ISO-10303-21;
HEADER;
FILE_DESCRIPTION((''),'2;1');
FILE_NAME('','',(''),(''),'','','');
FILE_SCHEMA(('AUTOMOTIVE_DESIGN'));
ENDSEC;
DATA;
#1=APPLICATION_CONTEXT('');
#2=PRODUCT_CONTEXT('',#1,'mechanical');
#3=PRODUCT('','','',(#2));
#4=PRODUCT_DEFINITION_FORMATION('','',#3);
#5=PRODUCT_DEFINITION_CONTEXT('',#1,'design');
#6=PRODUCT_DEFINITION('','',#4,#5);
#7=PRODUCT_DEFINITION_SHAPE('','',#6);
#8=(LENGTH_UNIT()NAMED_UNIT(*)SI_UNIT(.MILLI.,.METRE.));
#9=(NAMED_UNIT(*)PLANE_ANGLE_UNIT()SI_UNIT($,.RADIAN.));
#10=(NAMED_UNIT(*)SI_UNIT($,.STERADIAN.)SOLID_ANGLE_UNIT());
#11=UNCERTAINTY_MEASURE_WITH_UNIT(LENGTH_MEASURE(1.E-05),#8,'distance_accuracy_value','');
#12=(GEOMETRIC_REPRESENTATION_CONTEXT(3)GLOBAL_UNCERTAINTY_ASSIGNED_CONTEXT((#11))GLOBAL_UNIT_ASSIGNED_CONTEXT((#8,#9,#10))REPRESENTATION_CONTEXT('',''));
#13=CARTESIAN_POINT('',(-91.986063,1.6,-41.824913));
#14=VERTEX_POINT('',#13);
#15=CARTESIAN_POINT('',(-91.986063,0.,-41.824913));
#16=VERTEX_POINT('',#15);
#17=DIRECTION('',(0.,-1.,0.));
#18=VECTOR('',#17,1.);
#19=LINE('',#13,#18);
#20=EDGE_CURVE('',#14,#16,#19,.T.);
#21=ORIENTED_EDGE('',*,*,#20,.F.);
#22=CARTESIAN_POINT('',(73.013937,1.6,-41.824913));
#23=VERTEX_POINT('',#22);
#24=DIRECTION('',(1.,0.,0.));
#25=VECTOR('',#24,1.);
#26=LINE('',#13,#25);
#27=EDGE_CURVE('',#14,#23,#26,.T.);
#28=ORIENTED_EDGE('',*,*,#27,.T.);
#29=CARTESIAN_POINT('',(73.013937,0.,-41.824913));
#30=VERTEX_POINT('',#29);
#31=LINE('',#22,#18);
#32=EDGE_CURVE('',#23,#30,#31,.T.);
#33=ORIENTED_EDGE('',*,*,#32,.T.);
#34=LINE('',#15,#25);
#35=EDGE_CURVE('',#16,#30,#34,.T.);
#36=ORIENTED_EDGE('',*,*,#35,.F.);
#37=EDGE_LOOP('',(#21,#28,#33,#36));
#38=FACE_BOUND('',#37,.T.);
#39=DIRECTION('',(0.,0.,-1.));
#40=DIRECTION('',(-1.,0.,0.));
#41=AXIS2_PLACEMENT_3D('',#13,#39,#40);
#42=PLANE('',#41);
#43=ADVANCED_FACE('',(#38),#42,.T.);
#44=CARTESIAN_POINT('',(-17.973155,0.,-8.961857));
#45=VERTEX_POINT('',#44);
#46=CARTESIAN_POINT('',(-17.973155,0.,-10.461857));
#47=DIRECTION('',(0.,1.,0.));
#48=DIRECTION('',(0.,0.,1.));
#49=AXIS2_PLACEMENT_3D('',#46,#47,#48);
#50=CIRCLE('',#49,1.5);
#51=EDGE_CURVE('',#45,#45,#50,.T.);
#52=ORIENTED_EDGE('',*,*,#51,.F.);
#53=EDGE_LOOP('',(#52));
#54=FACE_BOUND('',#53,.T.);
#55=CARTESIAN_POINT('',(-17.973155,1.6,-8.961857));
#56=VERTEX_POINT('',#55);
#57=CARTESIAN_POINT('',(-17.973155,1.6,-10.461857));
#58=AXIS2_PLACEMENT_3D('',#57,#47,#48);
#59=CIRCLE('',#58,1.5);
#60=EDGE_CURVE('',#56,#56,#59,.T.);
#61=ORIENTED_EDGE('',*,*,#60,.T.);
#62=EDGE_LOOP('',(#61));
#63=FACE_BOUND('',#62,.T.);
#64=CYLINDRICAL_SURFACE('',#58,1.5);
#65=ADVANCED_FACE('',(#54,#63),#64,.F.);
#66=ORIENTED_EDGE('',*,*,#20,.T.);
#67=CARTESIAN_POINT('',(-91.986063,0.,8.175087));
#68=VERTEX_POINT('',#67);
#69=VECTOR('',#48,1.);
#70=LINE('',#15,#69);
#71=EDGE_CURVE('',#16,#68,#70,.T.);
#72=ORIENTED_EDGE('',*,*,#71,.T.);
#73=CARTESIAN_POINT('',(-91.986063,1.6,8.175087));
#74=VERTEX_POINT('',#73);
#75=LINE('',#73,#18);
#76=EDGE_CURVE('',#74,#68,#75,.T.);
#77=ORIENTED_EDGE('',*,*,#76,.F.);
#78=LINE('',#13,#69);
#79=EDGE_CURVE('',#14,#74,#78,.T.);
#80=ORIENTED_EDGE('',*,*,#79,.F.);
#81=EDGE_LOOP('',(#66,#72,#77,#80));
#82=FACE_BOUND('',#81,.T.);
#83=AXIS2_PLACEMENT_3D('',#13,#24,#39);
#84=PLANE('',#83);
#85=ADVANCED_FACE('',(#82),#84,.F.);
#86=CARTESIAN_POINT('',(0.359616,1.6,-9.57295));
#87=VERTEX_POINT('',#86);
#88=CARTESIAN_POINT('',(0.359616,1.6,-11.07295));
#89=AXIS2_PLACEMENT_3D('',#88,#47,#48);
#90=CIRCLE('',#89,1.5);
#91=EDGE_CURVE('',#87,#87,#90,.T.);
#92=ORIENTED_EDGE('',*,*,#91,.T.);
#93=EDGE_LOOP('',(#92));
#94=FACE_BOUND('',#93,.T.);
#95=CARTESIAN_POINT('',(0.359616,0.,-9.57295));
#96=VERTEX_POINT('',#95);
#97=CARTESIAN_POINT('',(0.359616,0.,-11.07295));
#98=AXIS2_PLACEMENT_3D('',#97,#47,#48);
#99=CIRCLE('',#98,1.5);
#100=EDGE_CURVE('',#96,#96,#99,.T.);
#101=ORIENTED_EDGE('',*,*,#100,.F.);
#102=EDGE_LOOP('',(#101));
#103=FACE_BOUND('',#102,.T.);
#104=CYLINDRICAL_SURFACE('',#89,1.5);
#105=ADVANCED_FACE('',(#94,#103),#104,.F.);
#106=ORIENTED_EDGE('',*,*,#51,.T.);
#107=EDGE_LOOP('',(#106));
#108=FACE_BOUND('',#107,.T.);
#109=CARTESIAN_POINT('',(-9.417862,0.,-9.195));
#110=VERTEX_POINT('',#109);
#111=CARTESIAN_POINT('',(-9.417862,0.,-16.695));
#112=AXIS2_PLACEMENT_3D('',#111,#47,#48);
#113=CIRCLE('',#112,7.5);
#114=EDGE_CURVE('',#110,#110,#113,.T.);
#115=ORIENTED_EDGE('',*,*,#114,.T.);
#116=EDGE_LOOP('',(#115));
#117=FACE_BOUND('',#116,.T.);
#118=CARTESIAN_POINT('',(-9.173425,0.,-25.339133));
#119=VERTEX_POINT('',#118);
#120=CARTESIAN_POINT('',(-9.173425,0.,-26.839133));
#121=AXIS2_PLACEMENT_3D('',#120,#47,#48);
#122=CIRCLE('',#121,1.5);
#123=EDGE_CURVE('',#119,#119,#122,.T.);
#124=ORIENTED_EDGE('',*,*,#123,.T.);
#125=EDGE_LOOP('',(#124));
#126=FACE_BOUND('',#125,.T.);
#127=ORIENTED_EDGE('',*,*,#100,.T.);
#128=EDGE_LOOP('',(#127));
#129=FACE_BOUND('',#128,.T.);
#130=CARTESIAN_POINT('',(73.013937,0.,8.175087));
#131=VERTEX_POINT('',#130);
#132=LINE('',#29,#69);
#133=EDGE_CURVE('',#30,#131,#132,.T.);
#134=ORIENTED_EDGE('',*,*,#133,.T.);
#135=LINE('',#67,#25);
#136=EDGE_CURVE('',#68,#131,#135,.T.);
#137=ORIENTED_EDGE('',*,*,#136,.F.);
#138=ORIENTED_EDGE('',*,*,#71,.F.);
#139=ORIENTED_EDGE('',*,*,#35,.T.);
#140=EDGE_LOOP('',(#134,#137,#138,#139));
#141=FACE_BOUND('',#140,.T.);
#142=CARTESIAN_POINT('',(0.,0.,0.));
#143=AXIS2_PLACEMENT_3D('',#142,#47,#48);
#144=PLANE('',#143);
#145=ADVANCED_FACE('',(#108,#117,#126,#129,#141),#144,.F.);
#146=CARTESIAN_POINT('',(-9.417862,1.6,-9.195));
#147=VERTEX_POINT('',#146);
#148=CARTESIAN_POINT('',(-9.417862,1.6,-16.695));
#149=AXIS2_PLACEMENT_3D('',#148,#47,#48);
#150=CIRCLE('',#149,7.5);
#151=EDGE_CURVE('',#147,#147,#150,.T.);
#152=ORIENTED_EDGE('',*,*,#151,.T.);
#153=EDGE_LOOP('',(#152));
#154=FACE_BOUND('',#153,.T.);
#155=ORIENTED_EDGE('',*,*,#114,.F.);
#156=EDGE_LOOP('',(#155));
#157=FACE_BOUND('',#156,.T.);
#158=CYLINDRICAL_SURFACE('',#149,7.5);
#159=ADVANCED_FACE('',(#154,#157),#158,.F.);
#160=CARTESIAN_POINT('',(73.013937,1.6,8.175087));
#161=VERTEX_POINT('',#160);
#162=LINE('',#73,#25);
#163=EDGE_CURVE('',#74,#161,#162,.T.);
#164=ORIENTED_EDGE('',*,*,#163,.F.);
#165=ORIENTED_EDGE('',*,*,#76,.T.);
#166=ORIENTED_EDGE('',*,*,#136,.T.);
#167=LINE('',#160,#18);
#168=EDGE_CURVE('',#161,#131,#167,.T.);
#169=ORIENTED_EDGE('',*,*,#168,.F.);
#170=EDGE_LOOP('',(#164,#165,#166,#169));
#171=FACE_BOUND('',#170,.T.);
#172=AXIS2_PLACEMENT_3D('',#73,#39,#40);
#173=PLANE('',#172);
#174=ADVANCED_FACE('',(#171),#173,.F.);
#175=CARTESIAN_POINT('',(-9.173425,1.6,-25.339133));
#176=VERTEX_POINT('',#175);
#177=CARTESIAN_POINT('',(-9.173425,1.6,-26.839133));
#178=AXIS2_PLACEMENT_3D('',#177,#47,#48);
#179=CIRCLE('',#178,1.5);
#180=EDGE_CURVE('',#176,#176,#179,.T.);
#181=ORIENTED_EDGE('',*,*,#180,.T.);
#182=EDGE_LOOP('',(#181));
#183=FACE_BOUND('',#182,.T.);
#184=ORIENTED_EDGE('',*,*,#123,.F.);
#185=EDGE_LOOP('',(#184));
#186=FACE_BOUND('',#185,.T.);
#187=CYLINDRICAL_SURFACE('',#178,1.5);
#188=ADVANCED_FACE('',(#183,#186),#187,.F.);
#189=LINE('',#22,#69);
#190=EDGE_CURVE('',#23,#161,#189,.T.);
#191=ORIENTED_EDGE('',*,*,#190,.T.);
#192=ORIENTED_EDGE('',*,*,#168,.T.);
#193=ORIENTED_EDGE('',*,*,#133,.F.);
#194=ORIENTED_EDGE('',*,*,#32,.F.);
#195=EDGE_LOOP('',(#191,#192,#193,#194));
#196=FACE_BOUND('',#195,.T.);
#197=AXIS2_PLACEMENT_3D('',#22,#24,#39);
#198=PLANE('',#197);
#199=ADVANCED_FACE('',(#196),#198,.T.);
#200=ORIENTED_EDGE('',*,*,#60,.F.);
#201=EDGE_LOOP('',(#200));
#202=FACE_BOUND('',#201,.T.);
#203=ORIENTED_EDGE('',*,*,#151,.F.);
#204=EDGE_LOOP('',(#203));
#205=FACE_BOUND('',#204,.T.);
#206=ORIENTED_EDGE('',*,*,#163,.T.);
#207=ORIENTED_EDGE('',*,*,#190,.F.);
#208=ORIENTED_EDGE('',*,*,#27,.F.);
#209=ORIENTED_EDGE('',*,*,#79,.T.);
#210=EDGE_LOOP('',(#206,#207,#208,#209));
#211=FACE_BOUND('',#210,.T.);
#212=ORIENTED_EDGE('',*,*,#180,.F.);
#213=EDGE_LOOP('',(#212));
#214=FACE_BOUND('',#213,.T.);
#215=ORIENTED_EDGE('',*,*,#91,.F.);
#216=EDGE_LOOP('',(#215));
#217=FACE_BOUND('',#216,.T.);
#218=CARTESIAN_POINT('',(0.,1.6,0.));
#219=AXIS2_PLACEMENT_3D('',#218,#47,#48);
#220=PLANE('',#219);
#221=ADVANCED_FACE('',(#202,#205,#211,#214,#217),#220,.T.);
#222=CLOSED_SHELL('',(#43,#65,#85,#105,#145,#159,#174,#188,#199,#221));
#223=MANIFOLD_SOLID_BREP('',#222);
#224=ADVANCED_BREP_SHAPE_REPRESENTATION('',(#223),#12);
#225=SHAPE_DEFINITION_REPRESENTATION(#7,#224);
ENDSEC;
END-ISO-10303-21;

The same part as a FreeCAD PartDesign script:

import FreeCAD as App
import Part
import Sketcher

V = App.Vector
Q = App.Units.Quantity

doc = App.newDocument("Part")
body = doc.addObject("PartDesign::Body", "Body")

# Sketch on XZ plane
sketch1 = body.newObject("Sketcher::SketchObject", "Sketch")
sketch1.AttachmentSupport = (doc.getObject("XZ_Plane"), [""])
sketch1.MapMode = "FlatFace"
sketch1.addGeometry([
    Part.LineSegment(V(-92, -42, 0), V(-92, 8, 0)),
    Part.LineSegment(V(-92, 8, 0), V(73, 8, 0)),
    Part.LineSegment(V(73, 8, 0), V(73, -42, 0)),
    Part.LineSegment(V(73, -42, 0), V(-92, -42, 0)),
], False)
sketch1.addConstraint([
    Sketcher.Constraint("Coincident", 0, 2, 1, 1),
    Sketcher.Constraint("Coincident", 1, 2, 2, 1),
    Sketcher.Constraint("Coincident", 2, 2, 3, 1),
    Sketcher.Constraint("Coincident", 3, 2, 0, 1),
    Sketcher.Constraint("Vertical", 0),
    Sketcher.Constraint("Horizontal", 1),
    Sketcher.Constraint("Vertical", 2),
    Sketcher.Constraint("Horizontal", 3),
    Sketcher.Constraint("DistanceX", 1, 1, 1, 2, Q("165 mm")),
    Sketcher.Constraint("DistanceY", 0, 1, 0, 2, Q("50 mm")),
    Sketcher.Constraint("DistanceX", 0, 2, -1, 1, Q("91.986063 mm")),
    Sketcher.Constraint("DistanceY", -1, 1, 0, 2, Q("8.175087 mm")),
])
pad1 = body.newObject("PartDesign::Pad", "Pad")
pad1.Profile = sketch1
pad1.Length = 1.6
pad1.Reversed = True

# Sketch on XZ plane
sketch2 = body.newObject("Sketcher::SketchObject", "Sketch001")
sketch2.AttachmentSupport = (doc.getObject("XZ_Plane"), [""])
sketch2.MapMode = "FlatFace"
sketch2.AttachmentOffset = App.Placement(V(0, 0, -1.6), App.Rotation())
sketch2.addGeometry(Part.Circle(V(-9, -17, 0), V(0, 0, 1), 8), False)
sketch2.addConstraint([
    Sketcher.Constraint("Diameter", 0, Q("15 mm")),
    Sketcher.Constraint("DistanceY", 0, 3, -1, 1, Q("16.695 mm")),
    Sketcher.Constraint("DistanceX", 0, 3, -1, 1, Q("9.417862 mm")),
])
doc.recompute()
hole = body.newObject("PartDesign::Hole", "Hole")
hole.Profile = sketch2
hole.ThreadType = "None"
hole.Diameter = 15
hole.DepthType = "ThroughAll"
hole.Reversed = True

# Sketch on XZ plane
sketch3 = body.newObject("Sketcher::SketchObject", "Sketch002")
sketch3.AttachmentSupport = (doc.getObject("XZ_Plane"), [""])
sketch3.MapMode = "FlatFace"
sketch3.AttachmentOffset = App.Placement(V(0, 0, -1.6), App.Rotation())
sketch3.addGeometry(Part.Circle(V(-9.2, -26.8, 0), V(0, 0, 1), 1.5), False)
sketch3.addConstraint([
    Sketcher.Constraint("Diameter", 0, Q("3 mm")),
    Sketcher.Constraint("DistanceX", 0, 3, -1, 1, Q("9.173425 mm")),
    Sketcher.Constraint("DistanceY", 0, 3, -1, 1, Q("26.839133 mm")),
])
doc.recompute()
hole2 = body.newObject("PartDesign::Hole", "Hole001")
hole2.Profile = sketch3
hole2.ThreadType = "None"
hole2.Diameter = 3
hole2.DepthType = "ThroughAll"
hole2.Reversed = True

# Sketch on XZ plane
sketch4 = body.newObject("Sketcher::SketchObject", "Sketch003")
sketch4.AttachmentSupport = (doc.getObject("XZ_Plane"), [""])
sketch4.MapMode = "FlatFace"
sketch4.AttachmentOffset = App.Placement(V(0, 0, -1.6), App.Rotation())
sketch4.addGeometry(Part.Circle(V(0.4, -11.1, 0), V(0, 0, 1), 1.5), False)
sketch4.addConstraint([
    Sketcher.Constraint("Diameter", 0, Q("3 mm")),
    Sketcher.Constraint("DistanceY", 0, 3, -1, 1, Q("11.07295 mm")),
    Sketcher.Constraint("DistanceX", -1, 1, 0, 3, Q("0.359616 mm")),
])
doc.recompute()
hole3 = body.newObject("PartDesign::Hole", "Hole002")
hole3.Profile = sketch4
hole3.ThreadType = "None"
hole3.Diameter = 3
hole3.DepthType = "ThroughAll"
hole3.Reversed = True

# Sketch on XZ plane
sketch5 = body.newObject("Sketcher::SketchObject", "Sketch004")
sketch5.AttachmentSupport = (doc.getObject("XZ_Plane"), [""])
sketch5.MapMode = "FlatFace"
sketch5.AttachmentOffset = App.Placement(V(0, 0, -1.6), App.Rotation())
sketch5.addGeometry(Part.Circle(V(-18, -10.5, 0), V(0, 0, 1), 1.5), False)
sketch5.addConstraint([
    Sketcher.Constraint("Diameter", 0, Q("3 mm")),
    Sketcher.Constraint("DistanceX", 0, 3, -1, 1, Q("17.973155 mm")),
    Sketcher.Constraint("DistanceY", 0, 3, -1, 1, Q("10.461857 mm")),
])
doc.recompute()
hole4 = body.newObject("PartDesign::Hole", "Hole003")
hole4.Profile = sketch5
hole4.ThreadType = "None"
hole4.Diameter = 3
hole4.DepthType = "ThroughAll"
hole4.Reversed = True

doc.recompute()
